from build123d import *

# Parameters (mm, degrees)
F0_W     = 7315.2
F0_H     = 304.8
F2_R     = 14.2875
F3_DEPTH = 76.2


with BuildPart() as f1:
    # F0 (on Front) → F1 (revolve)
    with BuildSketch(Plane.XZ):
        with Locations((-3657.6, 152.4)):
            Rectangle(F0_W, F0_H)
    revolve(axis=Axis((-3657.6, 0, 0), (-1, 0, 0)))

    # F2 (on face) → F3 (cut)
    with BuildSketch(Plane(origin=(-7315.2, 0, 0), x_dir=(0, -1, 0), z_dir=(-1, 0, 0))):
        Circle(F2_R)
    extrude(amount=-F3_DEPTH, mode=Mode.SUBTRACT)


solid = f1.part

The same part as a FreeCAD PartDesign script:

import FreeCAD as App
import Part
import Sketcher
from FreeCAD import Vector
Q = App.Units.Quantity

doc = App.newDocument("Part")
params = doc.addObject("Spreadsheet::Sheet", "Params")
for row, (alias, value) in enumerate([
    ("sketch1_width", "288 in"),
    ("sketch1_height", "12 in"),
    ("revolution_angle", "360 deg"),
    ("sketch2_diameter", "1.125 in"),
    ("pocket1_length", "3 in"),
], start=1):
    params.set(f"A{row}", alias)
    params.set(f"B{row}", "=" + value)
    params.setAlias(f"B{row}", alias)

body = doc.addObject("PartDesign::Body", "Body")

sketch1 = body.newObject("Sketcher::SketchObject", "Sketch")
sketch1.AttachmentSupport = (doc.getObject("XZ_Plane"), [""])
sketch1.MapMode = "FlatFace"
sketch1.addGeometry([
    Part.LineSegment(Vector(-7315.2, 304.8, 0), Vector(-7315.2, 0, 0)),
    Part.LineSegment(Vector(-7315.2, 0, 0), Vector(0, 0, 0)),
    Part.LineSegment(Vector(0, 0, 0), Vector(0, 304.8, 0)),
    Part.LineSegment(Vector(0, 304.8, 0), Vector(-7315.2, 304.8, 0)),
], False)
sketch1.addConstraint([
    Sketcher.Constraint("Coincident", 0, 2, 1, 1),
    Sketcher.Constraint("Coincident", 1, 2, 2, 1),
    Sketcher.Constraint("Coincident", 2, 2, 3, 1),
    Sketcher.Constraint("Coincident", 3, 2, 0, 1),
    Sketcher.Constraint("Vertical", 0),
    Sketcher.Constraint("Horizontal", 1),
    Sketcher.Constraint("Vertical", 2),
    Sketcher.Constraint("Horizontal", 3),
    Sketcher.Constraint("Coincident", 1, 2, -1, 1),
    Sketcher.Constraint("DistanceX", 1, 1, 1, 2, Q("288 in")),
    Sketcher.Constraint("DistanceY", 0, 2, 0, 1, Q("12 in")),
])
sketch1.setExpression("Constraints[9]", "Params.sketch1_width")
sketch1.setExpression("Constraints[10]", "Params.sketch1_height")
revolution = body.newObject("PartDesign::Revolution", "Revolution")
revolution.Profile = sketch1
revolution.ReferenceAxis = (sketch1, ["H_Axis"])
revolution.setExpression("Angle", "Params.revolution_angle")

sketch2 = body.newObject("Sketcher::SketchObject", "Sketch001")
sketch2.AttachmentSupport = (doc.getObject("YZ_Plane"), [""])
sketch2.MapMode = "FlatFace"
sketch2.AttachmentOffset = App.Placement(Vector(0, 0, -288 * 25.4), App.Rotation())
sketch2.addGeometry(Part.Circle(Vector(0, 0, 0), Vector(0, 0, 1), 14.2875), False)
sketch2.addConstraint([
    Sketcher.Constraint("Coincident", 0, 3, -1, 1),
    Sketcher.Constraint("Diameter", 0, Q("1.125 in")),
])
sketch2.setExpression("Constraints[1]", "Params.sketch2_diameter")
pocket1 = body.newObject("PartDesign::Pocket", "Pocket")
pocket1.Profile = sketch2
pocket1.setExpression("Length", "Params.pocket1_length")
pocket1.Reversed = True

doc.recompute()
